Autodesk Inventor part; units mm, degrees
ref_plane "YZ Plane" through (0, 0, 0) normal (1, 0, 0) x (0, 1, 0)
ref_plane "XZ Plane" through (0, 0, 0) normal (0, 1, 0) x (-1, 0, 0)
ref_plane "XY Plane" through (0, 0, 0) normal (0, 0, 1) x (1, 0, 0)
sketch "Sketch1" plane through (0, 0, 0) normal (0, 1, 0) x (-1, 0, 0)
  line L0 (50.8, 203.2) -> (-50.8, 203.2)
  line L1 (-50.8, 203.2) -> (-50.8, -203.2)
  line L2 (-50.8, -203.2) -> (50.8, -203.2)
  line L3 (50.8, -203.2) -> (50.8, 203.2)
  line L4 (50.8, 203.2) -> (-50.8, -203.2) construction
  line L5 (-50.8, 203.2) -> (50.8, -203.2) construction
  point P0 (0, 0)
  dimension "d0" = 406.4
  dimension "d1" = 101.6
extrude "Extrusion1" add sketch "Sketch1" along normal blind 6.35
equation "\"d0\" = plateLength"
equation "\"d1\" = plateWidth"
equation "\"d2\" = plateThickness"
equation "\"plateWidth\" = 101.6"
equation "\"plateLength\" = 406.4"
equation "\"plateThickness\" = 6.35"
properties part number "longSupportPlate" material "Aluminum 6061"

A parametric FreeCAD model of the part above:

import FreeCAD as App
import Part
import Sketcher

V = App.Vector
Q = App.Units.Quantity

doc = App.newDocument("Part")
body = doc.addObject("PartDesign::Body", "Body")

# Sketch on XZ plane
sketch1 = body.newObject("Sketcher::SketchObject", "Sketch")
sketch1.AttachmentSupport = (doc.getObject("XZ_Plane"), [""])
sketch1.MapMode = "FlatFace"
sketch1.addGeometry(Part.LineSegment(V(-51, -203, 0), V(-51, 203, 0)), False)
sketch1.addGeometry(Part.LineSegment(V(-51, 203, 0), V(51, 203, 0)), False)
sketch1.addGeometry(Part.LineSegment(V(51, 203, 0), V(51, -203, 0)), False)
sketch1.addGeometry(Part.LineSegment(V(51, -203, 0), V(-51, -203, 0)), False)
sketch1.addConstraint(Sketcher.Constraint("Coincident", 0, 2, 1, 1))
sketch1.addConstraint(Sketcher.Constraint("Coincident", 1, 2, 2, 1))
sketch1.addConstraint(Sketcher.Constraint("Coincident", 2, 2, 3, 1))
sketch1.addConstraint(Sketcher.Constraint("Coincident", 3, 2, 0, 1))
sketch1.addConstraint(Sketcher.Constraint("Vertical", 0))
sketch1.addConstraint(Sketcher.Constraint("Horizontal", 1))
sketch1.addConstraint(Sketcher.Constraint("Vertical", 2))
sketch1.addConstraint(Sketcher.Constraint("Horizontal", 3))
sketch1.addConstraint(Sketcher.Constraint("Symmetric", 0, 2, 2, 2, -1, 1))
sketch1.addConstraint(Sketcher.Constraint("DistanceX", 1, 1, 1, 2, Q("4 in")))
sketch1.addConstraint(Sketcher.Constraint("DistanceY", 0, 1, 0, 2, Q("16 in")))
pad1 = body.newObject("PartDesign::Pad", "Pad")
pad1.Profile = sketch1
pad1.Length = Q("0.25 in")
pad1.Reversed = True

doc.recompute()
